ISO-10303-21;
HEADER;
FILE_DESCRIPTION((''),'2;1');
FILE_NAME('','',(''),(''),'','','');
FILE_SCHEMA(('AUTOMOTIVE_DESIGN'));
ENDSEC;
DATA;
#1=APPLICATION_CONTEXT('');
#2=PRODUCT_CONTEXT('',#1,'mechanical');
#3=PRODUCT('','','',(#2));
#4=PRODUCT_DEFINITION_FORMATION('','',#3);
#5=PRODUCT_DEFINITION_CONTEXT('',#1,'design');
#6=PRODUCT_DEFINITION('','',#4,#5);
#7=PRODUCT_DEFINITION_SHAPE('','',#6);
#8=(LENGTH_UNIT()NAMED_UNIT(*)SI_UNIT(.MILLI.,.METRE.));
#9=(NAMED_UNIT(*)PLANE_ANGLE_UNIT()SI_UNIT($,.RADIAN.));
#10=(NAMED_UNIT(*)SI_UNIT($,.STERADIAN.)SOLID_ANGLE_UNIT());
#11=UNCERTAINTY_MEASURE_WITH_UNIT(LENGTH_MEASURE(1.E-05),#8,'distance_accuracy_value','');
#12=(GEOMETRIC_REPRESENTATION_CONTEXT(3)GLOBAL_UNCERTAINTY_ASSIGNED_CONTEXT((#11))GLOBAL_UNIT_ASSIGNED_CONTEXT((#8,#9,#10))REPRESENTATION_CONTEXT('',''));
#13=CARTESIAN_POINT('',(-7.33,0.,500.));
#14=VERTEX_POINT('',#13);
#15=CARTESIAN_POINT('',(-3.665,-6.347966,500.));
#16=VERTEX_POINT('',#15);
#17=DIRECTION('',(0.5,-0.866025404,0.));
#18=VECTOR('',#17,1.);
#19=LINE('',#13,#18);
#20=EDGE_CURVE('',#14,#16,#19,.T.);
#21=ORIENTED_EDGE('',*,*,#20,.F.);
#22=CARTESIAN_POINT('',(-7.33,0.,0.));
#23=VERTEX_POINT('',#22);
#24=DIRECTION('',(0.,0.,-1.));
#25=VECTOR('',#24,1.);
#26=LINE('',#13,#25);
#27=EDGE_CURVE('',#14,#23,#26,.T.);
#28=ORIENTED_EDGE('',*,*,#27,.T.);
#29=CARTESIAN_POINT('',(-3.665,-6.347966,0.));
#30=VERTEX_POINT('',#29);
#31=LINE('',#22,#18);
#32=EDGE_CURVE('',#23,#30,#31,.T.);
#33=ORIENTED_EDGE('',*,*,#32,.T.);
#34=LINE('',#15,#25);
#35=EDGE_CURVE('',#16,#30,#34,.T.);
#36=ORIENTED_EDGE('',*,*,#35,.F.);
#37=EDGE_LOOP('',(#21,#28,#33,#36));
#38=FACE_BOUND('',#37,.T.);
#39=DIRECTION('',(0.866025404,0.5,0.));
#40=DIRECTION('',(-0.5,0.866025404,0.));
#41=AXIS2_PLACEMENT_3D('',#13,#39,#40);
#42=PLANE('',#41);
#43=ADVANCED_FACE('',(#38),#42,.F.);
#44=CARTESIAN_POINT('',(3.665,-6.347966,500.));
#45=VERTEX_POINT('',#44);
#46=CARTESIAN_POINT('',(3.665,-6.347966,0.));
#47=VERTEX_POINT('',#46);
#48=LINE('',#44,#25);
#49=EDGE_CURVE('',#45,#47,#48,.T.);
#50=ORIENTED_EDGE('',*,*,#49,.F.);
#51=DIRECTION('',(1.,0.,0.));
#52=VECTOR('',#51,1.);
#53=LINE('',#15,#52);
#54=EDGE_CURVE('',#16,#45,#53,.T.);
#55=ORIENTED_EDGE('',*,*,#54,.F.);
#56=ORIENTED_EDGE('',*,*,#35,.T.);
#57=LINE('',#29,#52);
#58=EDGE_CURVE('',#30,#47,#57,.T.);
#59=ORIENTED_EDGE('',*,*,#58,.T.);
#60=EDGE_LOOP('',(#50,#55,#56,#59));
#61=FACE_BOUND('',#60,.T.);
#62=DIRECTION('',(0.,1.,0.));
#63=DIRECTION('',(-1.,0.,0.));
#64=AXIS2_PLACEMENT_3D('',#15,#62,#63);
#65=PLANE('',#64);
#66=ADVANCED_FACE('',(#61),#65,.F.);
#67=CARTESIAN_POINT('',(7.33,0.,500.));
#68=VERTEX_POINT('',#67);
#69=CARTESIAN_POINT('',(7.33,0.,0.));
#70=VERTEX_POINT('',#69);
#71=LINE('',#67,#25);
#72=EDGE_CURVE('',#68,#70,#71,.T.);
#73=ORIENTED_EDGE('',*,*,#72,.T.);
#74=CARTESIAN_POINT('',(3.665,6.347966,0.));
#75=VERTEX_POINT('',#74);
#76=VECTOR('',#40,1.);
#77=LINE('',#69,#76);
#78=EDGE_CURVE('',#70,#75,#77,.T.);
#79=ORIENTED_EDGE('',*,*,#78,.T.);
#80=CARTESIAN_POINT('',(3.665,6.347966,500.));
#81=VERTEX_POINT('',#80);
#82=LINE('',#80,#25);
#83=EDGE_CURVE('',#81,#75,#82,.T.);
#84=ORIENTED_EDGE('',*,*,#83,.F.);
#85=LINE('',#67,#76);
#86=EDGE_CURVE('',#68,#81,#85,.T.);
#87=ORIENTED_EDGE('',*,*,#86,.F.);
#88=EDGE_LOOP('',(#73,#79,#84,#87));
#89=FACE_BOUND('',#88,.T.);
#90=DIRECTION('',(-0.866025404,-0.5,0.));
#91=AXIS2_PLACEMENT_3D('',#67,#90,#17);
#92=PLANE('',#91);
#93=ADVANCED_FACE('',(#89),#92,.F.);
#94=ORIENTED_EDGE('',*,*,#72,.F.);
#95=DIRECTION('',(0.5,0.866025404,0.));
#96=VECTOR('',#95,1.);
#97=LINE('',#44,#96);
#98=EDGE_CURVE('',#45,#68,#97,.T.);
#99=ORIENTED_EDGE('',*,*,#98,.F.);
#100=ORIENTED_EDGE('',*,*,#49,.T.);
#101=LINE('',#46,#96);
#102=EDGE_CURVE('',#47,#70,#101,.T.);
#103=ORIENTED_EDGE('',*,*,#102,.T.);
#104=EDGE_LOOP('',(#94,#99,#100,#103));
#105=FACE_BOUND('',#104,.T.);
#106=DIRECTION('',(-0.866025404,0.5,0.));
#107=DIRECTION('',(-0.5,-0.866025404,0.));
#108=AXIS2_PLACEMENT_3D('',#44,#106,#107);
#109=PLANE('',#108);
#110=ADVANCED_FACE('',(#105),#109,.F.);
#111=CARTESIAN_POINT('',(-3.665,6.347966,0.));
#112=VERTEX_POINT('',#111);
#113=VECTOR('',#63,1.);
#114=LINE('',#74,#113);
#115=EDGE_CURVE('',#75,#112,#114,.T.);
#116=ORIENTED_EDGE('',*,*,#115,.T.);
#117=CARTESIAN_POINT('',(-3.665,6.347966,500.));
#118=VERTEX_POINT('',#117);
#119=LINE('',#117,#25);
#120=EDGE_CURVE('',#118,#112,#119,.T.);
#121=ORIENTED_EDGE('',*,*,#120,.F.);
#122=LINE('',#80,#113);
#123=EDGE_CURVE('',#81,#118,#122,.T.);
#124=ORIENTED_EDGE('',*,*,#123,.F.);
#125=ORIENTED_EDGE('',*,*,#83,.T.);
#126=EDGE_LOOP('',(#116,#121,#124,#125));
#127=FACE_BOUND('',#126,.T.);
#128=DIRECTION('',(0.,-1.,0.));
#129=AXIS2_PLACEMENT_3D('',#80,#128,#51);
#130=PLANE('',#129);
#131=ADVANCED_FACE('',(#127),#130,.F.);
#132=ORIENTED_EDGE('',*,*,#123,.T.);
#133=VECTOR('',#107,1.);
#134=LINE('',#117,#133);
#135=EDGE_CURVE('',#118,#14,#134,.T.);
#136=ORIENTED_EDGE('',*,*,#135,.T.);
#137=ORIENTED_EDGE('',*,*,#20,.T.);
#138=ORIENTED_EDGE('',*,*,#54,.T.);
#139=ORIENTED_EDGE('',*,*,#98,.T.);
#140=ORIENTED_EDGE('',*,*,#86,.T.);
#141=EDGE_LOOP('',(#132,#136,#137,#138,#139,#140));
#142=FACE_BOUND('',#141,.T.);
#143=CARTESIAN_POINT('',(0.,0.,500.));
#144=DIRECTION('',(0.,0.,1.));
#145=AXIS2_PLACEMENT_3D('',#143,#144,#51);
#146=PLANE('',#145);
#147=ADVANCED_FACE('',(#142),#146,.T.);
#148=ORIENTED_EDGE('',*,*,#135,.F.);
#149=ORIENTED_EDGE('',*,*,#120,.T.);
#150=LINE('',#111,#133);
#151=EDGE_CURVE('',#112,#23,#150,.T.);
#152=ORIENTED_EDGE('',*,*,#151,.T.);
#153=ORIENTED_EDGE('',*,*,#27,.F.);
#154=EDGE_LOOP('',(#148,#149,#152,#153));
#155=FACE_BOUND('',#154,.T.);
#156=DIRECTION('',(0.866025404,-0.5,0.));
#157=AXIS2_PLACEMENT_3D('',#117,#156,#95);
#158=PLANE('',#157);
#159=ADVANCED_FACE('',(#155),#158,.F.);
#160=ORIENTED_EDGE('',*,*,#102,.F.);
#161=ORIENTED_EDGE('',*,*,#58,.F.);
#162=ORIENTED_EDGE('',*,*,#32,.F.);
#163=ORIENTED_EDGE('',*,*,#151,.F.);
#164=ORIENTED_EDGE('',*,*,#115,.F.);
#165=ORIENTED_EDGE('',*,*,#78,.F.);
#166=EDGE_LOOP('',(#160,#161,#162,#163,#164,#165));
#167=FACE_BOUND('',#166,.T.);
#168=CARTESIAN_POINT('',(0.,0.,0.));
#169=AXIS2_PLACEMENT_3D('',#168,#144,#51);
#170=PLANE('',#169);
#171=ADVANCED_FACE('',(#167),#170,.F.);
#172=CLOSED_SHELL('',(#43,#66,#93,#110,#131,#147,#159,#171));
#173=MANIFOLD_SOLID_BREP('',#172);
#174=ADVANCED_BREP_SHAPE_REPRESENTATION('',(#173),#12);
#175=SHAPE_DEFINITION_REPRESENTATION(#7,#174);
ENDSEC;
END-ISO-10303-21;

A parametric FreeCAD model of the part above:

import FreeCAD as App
import Part
import Sketcher
Q = App.Units.Quantity


def add_polygon(sketch, points):
    """Adds a closed chain of lines whose ends are joined by coincident constraints."""
    first, n = sketch.GeometryCount, len(points)
    for a, b in zip(points, points[1:] + points[:1]):
        sketch.addGeometry(Part.LineSegment(App.Vector(*a, 0), App.Vector(*b, 0)), False)
    for i in range(n):
        sketch.addConstraint(Sketcher.Constraint("Coincident", first + i, 2, first + (i + 1) % n, 1))

doc = App.newDocument("Part")
body = doc.addObject("PartDesign::Body", "Body")

# Sketch on XY plane
sketch1 = doc.addObject("Sketcher::SketchObject", "Sketch")
body.addObject(sketch1)
sketch1.AttachmentSupport = (doc.XY_Plane, [""])
sketch1.MapMode = "FlatFace"
add_polygon(sketch1, [(-3.665, 6.347966), (-7.33, 0), (-3.665, -6.347966), (3.665, -6.347966), (7.33, 0), (3.665, 6.347966)])  # lines 0-5
sketch1.addConstraint([
    Sketcher.Constraint("Horizontal", 2),
    Sketcher.Constraint("Horizontal", 5),
    Sketcher.Constraint("Symmetric", 0, 2, 3, 2, -1, 1),
    Sketcher.Constraint("Symmetric", 1, 2, 4, 2, -1, 1),
    Sketcher.Constraint("PointOnObject", 0, 2, -1),
    Sketcher.Constraint("Parallel", 0, 3),
    Sketcher.Constraint("Vertical", 2, 2, 4, 2),
    Sketcher.Constraint("Angle", 0, Q("-120 deg")),
    Sketcher.Constraint("DistanceX", 2, 1, 2, 2, Q("7.33 mm")),
    Sketcher.Constraint("Distance", 0, Q("7.33 mm")),
])
pad1 = doc.addObject("PartDesign::Pad", "Pad")
body.addObject(pad1)
pad1.Profile = sketch1
pad1.Length = 500

doc.recompute()
